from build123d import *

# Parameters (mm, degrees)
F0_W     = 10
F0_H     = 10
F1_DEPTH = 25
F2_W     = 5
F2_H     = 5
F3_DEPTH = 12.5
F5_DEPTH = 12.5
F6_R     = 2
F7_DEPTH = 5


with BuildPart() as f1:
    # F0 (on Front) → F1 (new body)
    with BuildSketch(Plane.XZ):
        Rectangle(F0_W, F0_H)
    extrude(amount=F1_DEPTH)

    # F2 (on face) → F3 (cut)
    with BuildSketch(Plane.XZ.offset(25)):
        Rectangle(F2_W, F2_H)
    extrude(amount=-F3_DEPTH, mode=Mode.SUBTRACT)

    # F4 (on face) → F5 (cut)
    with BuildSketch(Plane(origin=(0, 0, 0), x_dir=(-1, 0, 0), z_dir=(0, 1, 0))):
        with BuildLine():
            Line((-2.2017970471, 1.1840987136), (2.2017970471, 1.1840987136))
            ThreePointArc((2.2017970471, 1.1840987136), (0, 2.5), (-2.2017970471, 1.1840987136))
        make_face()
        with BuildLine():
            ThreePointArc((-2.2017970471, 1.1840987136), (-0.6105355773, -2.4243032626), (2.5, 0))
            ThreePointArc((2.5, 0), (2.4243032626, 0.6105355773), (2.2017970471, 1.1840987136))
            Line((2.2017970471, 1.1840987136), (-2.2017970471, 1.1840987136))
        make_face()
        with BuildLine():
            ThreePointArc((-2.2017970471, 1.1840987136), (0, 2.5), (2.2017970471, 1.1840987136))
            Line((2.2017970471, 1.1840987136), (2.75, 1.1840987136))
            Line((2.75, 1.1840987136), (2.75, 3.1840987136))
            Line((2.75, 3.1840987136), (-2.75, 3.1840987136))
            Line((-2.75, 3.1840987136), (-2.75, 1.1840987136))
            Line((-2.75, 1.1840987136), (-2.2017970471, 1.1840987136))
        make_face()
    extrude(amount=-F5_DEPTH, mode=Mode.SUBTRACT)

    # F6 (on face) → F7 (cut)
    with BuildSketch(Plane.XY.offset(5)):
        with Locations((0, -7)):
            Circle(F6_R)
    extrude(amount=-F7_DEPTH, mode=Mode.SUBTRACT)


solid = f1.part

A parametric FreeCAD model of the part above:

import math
import FreeCAD as App
import Part
import Sketcher


def add_polygon(sketch, points):
    """Adds a closed chain of lines whose ends are joined by coincident constraints."""
    first, n = sketch.GeometryCount, len(points)
    for a, b in zip(points, points[1:] + points[:1]):
        sketch.addGeometry(Part.LineSegment(App.Vector(*a, 0), App.Vector(*b, 0)), False)
    for i in range(n):
        sketch.addConstraint(Sketcher.Constraint("Coincident", first + i, 2, first + (i + 1) % n, 1))

doc = App.newDocument("Part")
body = doc.addObject("PartDesign::Body", "Body")

# Sketch on XZ plane
sketch1 = body.newObject("Sketcher::SketchObject", "Sketch")
sketch1.AttachmentSupport = (doc.getObject("XZ_Plane"), [""])
sketch1.MapMode = "FlatFace"
add_polygon(sketch1, [(-5, 5), (-5, -5), (5, -5), (5, 5)])  # lines 0-3
sketch1.addConstraint(Sketcher.Constraint("Vertical", 0))
sketch1.addConstraint(Sketcher.Constraint("Horizontal", 1))
sketch1.addConstraint(Sketcher.Constraint("Vertical", 2))
sketch1.addConstraint(Sketcher.Constraint("Horizontal", 3))
sketch1.addConstraint(Sketcher.Constraint("Symmetric", 0, 2, 2, 2, -1, 1))
sketch1.addConstraint(Sketcher.Constraint("Equal", 3, 0))
sketch1.addConstraint(Sketcher.Constraint("DistanceX", 1, 1, 1, 2, 10.0))
pad1 = body.newObject("PartDesign::Pad", "Pad")
pad1.Profile = sketch1
pad1.Length = 25

# Sketch on XZ plane
sketch2 = body.newObject("Sketcher::SketchObject", "Sketch001")
sketch2.AttachmentSupport = (doc.getObject("XZ_Plane"), [""])
sketch2.MapMode = "FlatFace"
sketch2.AttachmentOffset = App.Placement(App.Vector(0, 0, 25), App.Rotation())
add_polygon(sketch2, [(-2.5, 2.5), (-2.5, -2.5), (2.5, -2.5), (2.5, 2.5)])  # lines 0-3
sketch2.addConstraint(Sketcher.Constraint("Vertical", 0))
sketch2.addConstraint(Sketcher.Constraint("Horizontal", 1))
sketch2.addConstraint(Sketcher.Constraint("Vertical", 2))
sketch2.addConstraint(Sketcher.Constraint("Horizontal", 3))
sketch2.addConstraint(Sketcher.Constraint("Symmetric", 0, 2, 2, 2, -1, 1))
sketch2.addConstraint(Sketcher.Constraint("Equal", 3, 0))
sketch2.addConstraint(Sketcher.Constraint("DistanceX", 1, 1, 1, 2, 5.0))
pocket1 = body.newObject("PartDesign::Pocket", "Pocket")
pocket1.Profile = sketch2
pocket1.Length = 12.5

# Sketch on XZ plane
sketch3 = body.newObject("Sketcher::SketchObject", "Sketch002")
sketch3.AttachmentSupport = (doc.getObject("XZ_Plane"), [""])
sketch3.MapMode = "FlatFace"
sketch3.addGeometry(Part.ArcOfCircle(Part.Circle(App.Vector(0, 0, 0), App.Vector(0, 0, 1), 2.5), math.radians(180), math.radians(388.270804)), False)
sketch3.addGeometry(Part.ArcOfCircle(Part.Circle(App.Vector(0, 0, 0), App.Vector(0, 0, 1), 2.5), math.radians(151.729196), math.radians(180)), False)
sketch3.addGeometry(Part.LineSegment(App.Vector(-2.201797, 1.184099, 0), App.Vector(-2.75, 1.184099, 0)), False)
sketch3.addGeometry(Part.LineSegment(App.Vector(-2.75, 1.184099, 0), App.Vector(-2.75, 3.184099, 0)), False)
sketch3.addGeometry(Part.LineSegment(App.Vector(-2.75, 3.184099, 0), App.Vector(2.75, 3.184099, 0)), False)
sketch3.addGeometry(Part.LineSegment(App.Vector(2.75, 3.184099, 0), App.Vector(2.75, 1.184099, 0)), False)
sketch3.addGeometry(Part.LineSegment(App.Vector(2.75, 1.184099, 0), App.Vector(2.201797, 1.184099, 0)), False)
sketch3.addConstraint(Sketcher.Constraint("Tangent", 0, 1, 1, 2))
sketch3.addConstraint(Sketcher.Constraint("Coincident", 1, 1, 2, 1))
sketch3.addConstraint(Sketcher.Constraint("Coincident", 2, 2, 3, 1))
sketch3.addConstraint(Sketcher.Constraint("Coincident", 3, 2, 4, 1))
sketch3.addConstraint(Sketcher.Constraint("Coincident", 4, 2, 5, 1))
sketch3.addConstraint(Sketcher.Constraint("Coincident", 5, 2, 6, 1))
sketch3.addConstraint(Sketcher.Constraint("Coincident", 6, 2, 0, 2))
sketch3.addConstraint(Sketcher.Constraint("Horizontal", 2))
sketch3.addConstraint(Sketcher.Constraint("Vertical", 3))
sketch3.addConstraint(Sketcher.Constraint("Horizontal", 4))
sketch3.addConstraint(Sketcher.Constraint("Vertical", 5))
sketch3.addConstraint(Sketcher.Constraint("Horizontal", 6))
sketch3.addConstraint(Sketcher.Constraint("Coincident", 0, 3, -1, 1))
sketch3.addConstraint(Sketcher.Constraint("Equal", 0, 1))
sketch3.addConstraint(Sketcher.Constraint("Symmetric", 2, 2, 5, 2, -2))
sketch3.addConstraint(Sketcher.Constraint("PointOnObject", 0, 1, -1))
sketch3.addConstraint(Sketcher.Constraint("Radius", 0, 2.5))
sketch3.addConstraint(Sketcher.Constraint("DistanceY", 3, 1, 3, 2, 2.0))
sketch3.addConstraint(Sketcher.Constraint("DistanceX", 4, 1, 4, 2, 5.5))
sketch3.addConstraint(Sketcher.Constraint("DistanceY", -1, 1, 1, 1, 1.184099))
pocket2 = body.newObject("PartDesign::Pocket", "Pocket001")
pocket2.Profile = sketch3
pocket2.Length = 12.5
pocket2.Reversed = True

# Sketch on XY plane
sketch4 = body.newObject("Sketcher::SketchObject", "Sketch003")
sketch4.AttachmentSupport = (doc.getObject("XY_Plane"), [""])
sketch4.MapMode = "FlatFace"
sketch4.AttachmentOffset = App.Placement(App.Vector(0, 0, 5), App.Rotation())
sketch4.addGeometry(Part.Circle(App.Vector(0, -7, 0), App.Vector(0, 0, 1), 2), False)
sketch4.addConstraint(Sketcher.Constraint("PointOnObject", 0, 3, -2))
sketch4.addConstraint(Sketcher.Constraint("Diameter", 0, 4.0))
sketch4.addConstraint(Sketcher.Constraint("DistanceY", 0, 3, -1, 1, 7.0))
pocket3 = body.newObject("PartDesign::Pocket", "Pocket002")
pocket3.Profile = sketch4
pocket3.Length = 5

doc.recompute()
